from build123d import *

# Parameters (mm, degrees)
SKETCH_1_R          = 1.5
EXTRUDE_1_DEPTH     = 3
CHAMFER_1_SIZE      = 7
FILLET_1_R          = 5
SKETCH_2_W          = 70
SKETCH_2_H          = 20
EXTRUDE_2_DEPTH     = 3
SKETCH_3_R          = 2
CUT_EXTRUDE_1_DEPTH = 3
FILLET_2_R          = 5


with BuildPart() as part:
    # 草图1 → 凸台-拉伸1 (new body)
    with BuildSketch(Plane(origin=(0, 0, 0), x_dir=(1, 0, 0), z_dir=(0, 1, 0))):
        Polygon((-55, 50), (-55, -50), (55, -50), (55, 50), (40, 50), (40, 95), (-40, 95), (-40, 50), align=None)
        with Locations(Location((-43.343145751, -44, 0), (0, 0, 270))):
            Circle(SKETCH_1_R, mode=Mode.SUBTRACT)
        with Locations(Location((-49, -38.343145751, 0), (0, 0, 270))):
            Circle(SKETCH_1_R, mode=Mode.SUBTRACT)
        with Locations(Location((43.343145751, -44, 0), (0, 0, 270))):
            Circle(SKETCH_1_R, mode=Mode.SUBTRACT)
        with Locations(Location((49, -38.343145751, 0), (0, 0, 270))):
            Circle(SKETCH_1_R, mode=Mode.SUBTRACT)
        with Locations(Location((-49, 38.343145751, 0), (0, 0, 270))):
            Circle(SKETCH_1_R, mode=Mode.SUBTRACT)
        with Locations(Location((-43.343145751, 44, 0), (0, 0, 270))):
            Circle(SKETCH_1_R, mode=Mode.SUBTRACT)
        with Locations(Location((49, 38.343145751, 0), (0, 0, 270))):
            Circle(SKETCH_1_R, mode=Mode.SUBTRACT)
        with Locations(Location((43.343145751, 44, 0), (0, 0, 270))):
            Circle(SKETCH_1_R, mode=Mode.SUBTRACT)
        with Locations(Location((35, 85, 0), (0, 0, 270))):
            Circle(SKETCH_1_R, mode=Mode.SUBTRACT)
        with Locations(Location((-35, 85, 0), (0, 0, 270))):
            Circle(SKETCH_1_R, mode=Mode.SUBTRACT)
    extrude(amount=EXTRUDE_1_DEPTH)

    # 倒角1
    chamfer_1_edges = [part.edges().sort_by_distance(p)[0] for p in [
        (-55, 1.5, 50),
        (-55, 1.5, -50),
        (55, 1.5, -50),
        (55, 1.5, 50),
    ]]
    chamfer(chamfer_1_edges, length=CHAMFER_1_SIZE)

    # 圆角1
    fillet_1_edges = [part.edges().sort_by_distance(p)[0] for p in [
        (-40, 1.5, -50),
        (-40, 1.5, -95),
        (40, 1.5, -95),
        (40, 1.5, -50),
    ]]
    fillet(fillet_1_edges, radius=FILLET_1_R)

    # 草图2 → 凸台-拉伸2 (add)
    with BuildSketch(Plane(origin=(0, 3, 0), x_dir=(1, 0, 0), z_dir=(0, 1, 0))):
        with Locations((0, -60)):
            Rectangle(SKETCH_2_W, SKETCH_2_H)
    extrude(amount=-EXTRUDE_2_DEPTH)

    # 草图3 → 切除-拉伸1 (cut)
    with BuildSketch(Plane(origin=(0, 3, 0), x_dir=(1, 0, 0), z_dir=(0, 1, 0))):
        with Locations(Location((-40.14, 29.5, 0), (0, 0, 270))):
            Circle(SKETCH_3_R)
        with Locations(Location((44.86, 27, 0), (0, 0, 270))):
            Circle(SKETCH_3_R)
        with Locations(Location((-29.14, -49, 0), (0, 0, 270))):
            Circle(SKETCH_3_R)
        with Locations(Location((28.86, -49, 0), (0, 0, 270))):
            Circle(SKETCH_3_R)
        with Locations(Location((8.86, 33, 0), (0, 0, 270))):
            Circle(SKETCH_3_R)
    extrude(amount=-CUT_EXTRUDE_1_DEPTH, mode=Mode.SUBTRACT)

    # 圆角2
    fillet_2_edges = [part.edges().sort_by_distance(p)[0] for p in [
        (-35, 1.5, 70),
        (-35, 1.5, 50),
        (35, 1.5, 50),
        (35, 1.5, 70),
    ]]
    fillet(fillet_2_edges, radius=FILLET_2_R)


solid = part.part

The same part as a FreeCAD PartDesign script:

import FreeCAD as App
import Part
import Sketcher

V = App.Vector


def edges_at(feature, points):
    """Names of the edges that pass closest to the given points."""
    edges = feature.Shape.Edges
    near = lambda p: min(range(len(edges)), key=lambda i: edges[i].distToShape(Part.Vertex(*p))[0])
    return sorted({f"Edge{near(p) + 1}" for p in points})

doc = App.newDocument("Part")
body = doc.addObject("PartDesign::Body", "Body")

# Sketch on XZ plane
sketch1 = doc.addObject("Sketcher::SketchObject", "Sketch")
body.addObject(sketch1)
sketch1.AttachmentSupport = (doc.XZ_Plane, [""])
sketch1.MapMode = "FlatFace"
sketch1.addGeometry([
    Part.LineSegment(V(-55, -50, 0), V(-55, 50, 0)),  # 0
    Part.LineSegment(V(-55, 50, 0), V(55, 50, 0)),  # 1
    Part.LineSegment(V(55, 50, 0), V(55, -50, 0)),  # 2
    Part.LineSegment(V(55, -50, 0), V(40, -50, 0)),  # 3
    Part.LineSegment(V(40, -50, 0), V(40, -95, 0)),  # 4
    Part.LineSegment(V(40, -95, 0), V(-40, -95, 0)),  # 5
    Part.LineSegment(V(-40, -95, 0), V(-40, -50, 0)),  # 6
    Part.LineSegment(V(-40, -50, 0), V(-55, -50, 0)),  # 7
    Part.Circle(V(-49, 38.3, 0), V(0, 0, 1), 1.5),  # 8
    Part.Circle(V(-43.3, 44, 0), V(0, 0, 1), 1.5),  # 9
    Part.Circle(V(43.3, 44, 0), V(0, 0, 1), 1.5),  # 10
    Part.Circle(V(49, 38.3, 0), V(0, 0, 1), 1.5),  # 11
    Part.Circle(V(-49, -38.3, 0), V(0, 0, 1), 1.5),  # 12
    Part.Circle(V(-43.3, -44, 0), V(0, 0, 1), 1.5),  # 13
    Part.Circle(V(-35, -85, 0), V(0, 0, 1), 1.5),  # 14
    Part.Circle(V(43.3, -44, 0), V(0, 0, 1), 1.5),  # 15
    Part.Circle(V(49, -38.3, 0), V(0, 0, 1), 1.5),  # 16
    Part.Circle(V(35, -85, 0), V(0, 0, 1), 1.5),  # 17
], False)
sketch1.addConstraint([
    Sketcher.Constraint("Coincident", 0, 2, 1, 1),
    Sketcher.Constraint("Coincident", 1, 2, 2, 1),
    Sketcher.Constraint("Coincident", 2, 2, 3, 1),
    Sketcher.Constraint("Coincident", 3, 2, 4, 1),
    Sketcher.Constraint("Coincident", 4, 2, 5, 1),
    Sketcher.Constraint("Coincident", 5, 2, 6, 1),
    Sketcher.Constraint("Coincident", 6, 2, 7, 1),
    Sketcher.Constraint("Coincident", 7, 2, 0, 1),
    Sketcher.Constraint("Vertical", 0),
    Sketcher.Constraint("Horizontal", 1),
    Sketcher.Constraint("Vertical", 2),
    Sketcher.Constraint("Horizontal", 3),
    Sketcher.Constraint("Vertical", 4),
    Sketcher.Constraint("Horizontal", 5),
    Sketcher.Constraint("Vertical", 6),
    Sketcher.Constraint("Horizontal", 7),
    Sketcher.Constraint("Equal", 8, 9),
    Sketcher.Constraint("Equal", 9, 10),
    Sketcher.Constraint("Equal", 10, 11),
    Sketcher.Constraint("Equal", 11, 12),
    Sketcher.Constraint("Equal", 12, 13),
    Sketcher.Constraint("Equal", 13, 14),
    Sketcher.Constraint("Equal", 14, 15),
    Sketcher.Constraint("Equal", 15, 16),
    Sketcher.Constraint("Equal", 16, 17),
    Sketcher.Constraint("Symmetric", 11, 3, 12, 3, -1, 1),
    Sketcher.Constraint("Symmetric", 10, 3, 13, 3, -1, 1),
    Sketcher.Constraint("Symmetric", 9, 3, 15, 3, -1, 1),
    Sketcher.Constraint("Symmetric", 8, 3, 16, 3, -1, 1),
    Sketcher.Constraint("Symmetric", 0, 2, 2, 2, -1, 1),
    Sketcher.Constraint("Symmetric", 9, 3, 10, 3, -2),
    Sketcher.Constraint("Symmetric", 8, 3, 11, 3, -2),
    Sketcher.Constraint("Symmetric", 14, 3, 17, 3, -2),
    Sketcher.Constraint("Symmetric", 3, 2, 6, 2, -2),
    Sketcher.Constraint("Diameter", 8, 3.0),
    Sketcher.Constraint("DistanceX", 1, 1, 1, 2, 110.0),
    Sketcher.Constraint("DistanceX", 3, 2, 3, 1, 15.0),
    Sketcher.Constraint("DistanceY", 0, 1, 0, 2, 100.0),
    Sketcher.Constraint("DistanceY", 4, 2, 4, 1, 45.0),
    Sketcher.Constraint("DistanceX", 8, 3, -1, 1, 49.0),
    Sketcher.Constraint("DistanceY", -1, 1, 9, 3, 44.0),
    Sketcher.Constraint("DistanceX", 14, 3, -1, 1, 35.0),
    Sketcher.Constraint("DistanceY", 14, 3, -1, 1, 85.0),
    Sketcher.Constraint("DistanceX", 9, 3, 10, 3, 86.686292),
    Sketcher.Constraint("DistanceY", 12, 3, 8, 3, 76.686292),
])
pad1 = doc.addObject("PartDesign::Pad", "Pad")
body.addObject(pad1)
pad1.Profile = sketch1
pad1.Length = 3
pad1.Reversed = True
doc.recompute()

chamfer = doc.addObject("PartDesign::Chamfer", "Chamfer")
body.addObject(chamfer)
chamfer.Base = (pad1, edges_at(pad1, [
    (-55, 1.5, 50),
    (-55, 1.5, -50),
    (55, 1.5, -50),
    (55, 1.5, 50),
]))
chamfer.Size = 7
doc.recompute()

fillet = doc.addObject("PartDesign::Fillet", "Fillet")
body.addObject(fillet)
fillet.Base = (chamfer, edges_at(chamfer, [
    (-40, 1.5, -50),
    (-40, 1.5, -95),
    (40, 1.5, -95),
    (40, 1.5, -50),
]))
fillet.Radius = 5

# Sketch on XZ plane
sketch2 = doc.addObject("Sketcher::SketchObject", "Sketch001")
body.addObject(sketch2)
sketch2.AttachmentSupport = (doc.XZ_Plane, [""])
sketch2.MapMode = "FlatFace"
sketch2.AttachmentOffset = App.Placement(V(0, 0, -3), App.Rotation())
sketch2.addGeometry([
    Part.LineSegment(V(-35, 50, 0), V(-35, 70, 0)),
    Part.LineSegment(V(-35, 70, 0), V(35, 70, 0)),
    Part.LineSegment(V(35, 70, 0), V(35, 50, 0)),
    Part.LineSegment(V(35, 50, 0), V(-35, 50, 0)),
], False)
sketch2.addConstraint([
    Sketcher.Constraint("Coincident", 0, 2, 1, 1),
    Sketcher.Constraint("Coincident", 1, 2, 2, 1),
    Sketcher.Constraint("Coincident", 2, 2, 3, 1),
    Sketcher.Constraint("Coincident", 3, 2, 0, 1),
    Sketcher.Constraint("Vertical", 0),
    Sketcher.Constraint("Horizontal", 1),
    Sketcher.Constraint("Vertical", 2),
    Sketcher.Constraint("Horizontal", 3),
    Sketcher.Constraint("DistanceX", 1, 1, 1, 2, 70.0),
    Sketcher.Constraint("DistanceY", 0, 1, 0, 2, 20.0),
    Sketcher.Constraint("DistanceX", 0, 2, -1, 1, 35.0),
    Sketcher.Constraint("DistanceY", -1, 1, 0, 2, 70.0),
])
pad2 = doc.addObject("PartDesign::Pad", "Pad001")
body.addObject(pad2)
pad2.Profile = sketch2
pad2.Length = 3

# Sketch on XZ plane
sketch3 = doc.addObject("Sketcher::SketchObject", "Sketch002")
body.addObject(sketch3)
sketch3.AttachmentSupport = (doc.XZ_Plane, [""])
sketch3.MapMode = "FlatFace"
sketch3.AttachmentOffset = App.Placement(V(0, 0, -3), App.Rotation())
sketch3.addGeometry([
    Part.Circle(V(-40.1, -29.5, 0), V(0, 0, 1), 2),  # 0
    Part.Circle(V(44.9, -27, 0), V(0, 0, 1), 2),  # 1
    Part.Circle(V(-29.1, 49, 0), V(0, 0, 1), 2),  # 2
    Part.Circle(V(28.9, 49, 0), V(0, 0, 1), 2),  # 3
    Part.Circle(V(8.9, -33, 0), V(0, 0, 1), 2),  # 4
], False)
sketch3.addConstraint([
    Sketcher.Constraint("Equal", 0, 1),
    Sketcher.Constraint("Equal", 1, 2),
    Sketcher.Constraint("Equal", 2, 3),
    Sketcher.Constraint("Equal", 3, 4),
    Sketcher.Constraint("Horizontal", 2, 3, 3, 3),
    Sketcher.Constraint("Diameter", 0, 4.0),
    Sketcher.Constraint("DistanceY", 1, 3, -1, 1, 27.0),
    Sketcher.Constraint("DistanceY", -1, 1, 2, 3, 49.0),
    Sketcher.Constraint("DistanceY", 4, 3, -1, 1, 33.0),
    Sketcher.Constraint("DistanceX", 0, 3, 1, 3, 85.0),
    Sketcher.Constraint("DistanceX", 0, 3, 2, 3, 11.0),
    Sketcher.Constraint("DistanceX", 2, 3, 3, 3, 58.0),
    Sketcher.Constraint("DistanceX", 4, 3, 1, 3, 36.0),
    Sketcher.Constraint("DistanceY", 0, 3, -1, 1, 29.5),
    Sketcher.Constraint("DistanceX", 0, 3, -1, 1, 40.14),
])
pocket1 = doc.addObject("PartDesign::Pocket", "Pocket")
body.addObject(pocket1)
pocket1.Profile = sketch3
pocket1.Length = 3
pocket1.Reversed = True
doc.recompute()

fillet2 = doc.addObject("PartDesign::Fillet", "Fillet001")
body.addObject(fillet2)
fillet2.Base = (pocket1, edges_at(pocket1, [
    (-35, 1.5, 70),
    (-35, 1.5, 50),
    (35, 1.5, 50),
    (35, 1.5, 70),
]))
fillet2.Radius = 5

doc.recompute()
